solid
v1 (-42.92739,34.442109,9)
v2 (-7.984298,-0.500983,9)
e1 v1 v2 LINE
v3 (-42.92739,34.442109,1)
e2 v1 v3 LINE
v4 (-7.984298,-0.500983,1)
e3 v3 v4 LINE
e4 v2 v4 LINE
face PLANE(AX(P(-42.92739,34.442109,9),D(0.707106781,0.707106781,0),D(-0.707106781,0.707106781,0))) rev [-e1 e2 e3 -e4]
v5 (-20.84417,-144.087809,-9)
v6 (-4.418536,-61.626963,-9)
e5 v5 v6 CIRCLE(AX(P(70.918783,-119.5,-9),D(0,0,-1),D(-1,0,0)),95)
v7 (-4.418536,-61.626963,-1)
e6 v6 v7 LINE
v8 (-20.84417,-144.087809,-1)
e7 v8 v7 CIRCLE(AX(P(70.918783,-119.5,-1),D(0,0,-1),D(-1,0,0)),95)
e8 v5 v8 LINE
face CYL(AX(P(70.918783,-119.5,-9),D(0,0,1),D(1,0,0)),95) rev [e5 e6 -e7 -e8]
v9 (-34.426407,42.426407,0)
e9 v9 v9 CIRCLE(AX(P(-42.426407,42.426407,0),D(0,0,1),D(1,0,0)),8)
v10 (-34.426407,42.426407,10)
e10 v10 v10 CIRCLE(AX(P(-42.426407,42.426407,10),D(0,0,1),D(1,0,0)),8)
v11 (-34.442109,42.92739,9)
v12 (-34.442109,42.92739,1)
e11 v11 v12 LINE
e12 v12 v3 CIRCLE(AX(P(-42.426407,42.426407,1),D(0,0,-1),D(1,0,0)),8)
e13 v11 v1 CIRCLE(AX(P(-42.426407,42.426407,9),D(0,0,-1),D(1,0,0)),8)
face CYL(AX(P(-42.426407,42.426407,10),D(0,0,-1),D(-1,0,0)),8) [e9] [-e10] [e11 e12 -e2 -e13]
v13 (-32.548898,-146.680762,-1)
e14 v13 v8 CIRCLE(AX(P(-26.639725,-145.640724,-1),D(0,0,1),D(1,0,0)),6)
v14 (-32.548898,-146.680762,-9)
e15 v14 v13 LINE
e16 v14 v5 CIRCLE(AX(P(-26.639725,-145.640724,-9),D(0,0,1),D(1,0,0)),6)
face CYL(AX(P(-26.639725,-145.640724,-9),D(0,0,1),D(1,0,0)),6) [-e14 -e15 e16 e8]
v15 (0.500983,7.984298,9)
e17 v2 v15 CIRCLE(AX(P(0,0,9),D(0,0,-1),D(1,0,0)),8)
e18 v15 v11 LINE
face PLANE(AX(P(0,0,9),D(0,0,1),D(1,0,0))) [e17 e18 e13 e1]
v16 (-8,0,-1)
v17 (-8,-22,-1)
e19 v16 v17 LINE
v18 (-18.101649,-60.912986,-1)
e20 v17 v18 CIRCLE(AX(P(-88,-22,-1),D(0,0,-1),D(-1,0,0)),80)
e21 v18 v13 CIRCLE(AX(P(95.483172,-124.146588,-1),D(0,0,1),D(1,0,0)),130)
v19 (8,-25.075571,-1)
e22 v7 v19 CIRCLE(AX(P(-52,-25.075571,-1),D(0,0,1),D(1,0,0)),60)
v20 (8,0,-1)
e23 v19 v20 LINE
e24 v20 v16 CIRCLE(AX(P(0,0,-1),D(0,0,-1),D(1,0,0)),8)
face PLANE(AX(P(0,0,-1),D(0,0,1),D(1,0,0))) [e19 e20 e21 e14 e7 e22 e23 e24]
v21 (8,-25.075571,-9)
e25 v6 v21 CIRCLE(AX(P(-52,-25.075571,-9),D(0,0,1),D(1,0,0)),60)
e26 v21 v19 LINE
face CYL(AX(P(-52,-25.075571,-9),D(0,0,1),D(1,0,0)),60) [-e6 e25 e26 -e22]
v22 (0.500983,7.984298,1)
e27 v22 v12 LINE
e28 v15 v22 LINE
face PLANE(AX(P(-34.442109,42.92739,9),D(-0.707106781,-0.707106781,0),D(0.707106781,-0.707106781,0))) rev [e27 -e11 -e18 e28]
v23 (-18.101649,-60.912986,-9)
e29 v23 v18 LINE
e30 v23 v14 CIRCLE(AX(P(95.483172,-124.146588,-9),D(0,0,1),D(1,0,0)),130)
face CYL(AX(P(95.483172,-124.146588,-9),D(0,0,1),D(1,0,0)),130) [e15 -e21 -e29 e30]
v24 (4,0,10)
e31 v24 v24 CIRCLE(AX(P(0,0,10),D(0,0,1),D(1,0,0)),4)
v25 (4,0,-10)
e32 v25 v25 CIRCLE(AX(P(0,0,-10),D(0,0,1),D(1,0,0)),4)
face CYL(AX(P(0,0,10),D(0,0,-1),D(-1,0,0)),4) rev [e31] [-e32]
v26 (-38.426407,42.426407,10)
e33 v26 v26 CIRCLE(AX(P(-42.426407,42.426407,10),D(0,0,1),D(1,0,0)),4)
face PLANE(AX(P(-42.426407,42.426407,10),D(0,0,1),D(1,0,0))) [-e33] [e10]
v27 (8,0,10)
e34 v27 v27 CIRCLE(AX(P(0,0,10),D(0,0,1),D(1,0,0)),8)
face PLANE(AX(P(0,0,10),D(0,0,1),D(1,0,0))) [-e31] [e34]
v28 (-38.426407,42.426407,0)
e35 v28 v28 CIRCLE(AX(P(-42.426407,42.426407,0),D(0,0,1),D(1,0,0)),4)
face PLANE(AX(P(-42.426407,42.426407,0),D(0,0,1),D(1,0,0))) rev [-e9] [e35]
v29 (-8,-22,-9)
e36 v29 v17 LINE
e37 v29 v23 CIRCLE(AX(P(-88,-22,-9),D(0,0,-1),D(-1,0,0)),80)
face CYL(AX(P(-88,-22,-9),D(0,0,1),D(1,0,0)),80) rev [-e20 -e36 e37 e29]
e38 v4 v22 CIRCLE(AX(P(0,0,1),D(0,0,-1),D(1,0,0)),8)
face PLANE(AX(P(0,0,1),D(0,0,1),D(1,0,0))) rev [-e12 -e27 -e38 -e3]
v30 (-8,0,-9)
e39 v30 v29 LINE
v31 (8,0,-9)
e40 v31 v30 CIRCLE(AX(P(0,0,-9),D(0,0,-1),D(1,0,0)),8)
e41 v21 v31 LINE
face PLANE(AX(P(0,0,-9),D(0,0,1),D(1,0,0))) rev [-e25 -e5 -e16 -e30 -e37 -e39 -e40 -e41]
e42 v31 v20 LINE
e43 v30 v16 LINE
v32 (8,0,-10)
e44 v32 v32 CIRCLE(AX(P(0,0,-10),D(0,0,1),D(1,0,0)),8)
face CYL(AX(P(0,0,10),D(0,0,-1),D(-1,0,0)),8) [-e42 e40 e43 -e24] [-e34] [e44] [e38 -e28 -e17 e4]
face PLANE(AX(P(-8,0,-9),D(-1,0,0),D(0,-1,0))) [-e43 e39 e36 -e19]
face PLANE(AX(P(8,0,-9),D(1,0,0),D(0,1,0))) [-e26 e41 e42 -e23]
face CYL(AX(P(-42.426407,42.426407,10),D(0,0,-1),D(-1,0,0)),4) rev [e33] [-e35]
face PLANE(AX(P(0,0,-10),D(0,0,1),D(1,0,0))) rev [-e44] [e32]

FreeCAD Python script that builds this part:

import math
import FreeCAD as App
import Part
import Sketcher
Q = App.Units.Quantity

doc = App.newDocument("Part")
body = doc.addObject("PartDesign::Body", "Body")

sketch1 = body.newObject("Sketcher::SketchObject", "Sketch")
sketch1.AttachmentSupport = (doc.getObject("XY_Plane"), [""])
sketch1.MapMode = "FlatFace"
sketch1.addGeometry(Part.Circle(App.Vector(0, 0, 0), App.Vector(0, 0, 1), 8), False)
sketch1.addGeometry(Part.Circle(App.Vector(0, 0, 0), App.Vector(0, 0, 1), 4), False)
sketch1.addConstraint(Sketcher.Constraint("Coincident", 0, 3, -1, 1))
sketch1.addConstraint(Sketcher.Constraint("Coincident", 1, 3, -1, 1))
sketch1.addConstraint(Sketcher.Constraint("Diameter", 0, 16.0))
sketch1.addConstraint(Sketcher.Constraint("Diameter", 1, 8.0))
pad1 = body.newObject("PartDesign::Pad", "Pad")
pad1.Profile = sketch1
pad1.Length = 10
body2 = doc.addObject("PartDesign::Body", "Body001")

sketch2 = body2.newObject("Sketcher::SketchObject", "Sketch001")
sketch2.AttachmentSupport = (doc.getObject("XY_Plane001"), [""])
sketch2.MapMode = "FlatFace"
sketch2.addGeometry(Part.Circle(App.Vector(-42.4, 42.4, 0), App.Vector(0, 0, 1), 8), False)
sketch2.addGeometry(Part.Circle(App.Vector(-42.4, 42.4, 0), App.Vector(0, 0, 1), 4), False)
sketch2.addConstraint(Sketcher.Constraint("Coincident", 1, 3, 0, 3))
sketch2.addConstraint(Sketcher.Constraint("Diameter", 0, 16.0))
sketch2.addConstraint(Sketcher.Constraint("Diameter", 1, 8.0))
sketch2.addConstraint(Sketcher.Constraint("DistanceX", 0, 3, -1, 1, 42.426407))
sketch2.addConstraint(Sketcher.Constraint("DistanceY", -1, 1, 0, 3, 42.426407))
pad2 = body2.newObject("PartDesign::Pad", "Pad001")
pad2.Profile = sketch2
pad2.Length = 10
body.AllowCompound = True
doc.recompute()

boolean = body.newObject("PartDesign::Boolean", "Boolean")
boolean.Type = "Fuse"
boolean.addObjects([body2])

sketch3 = body.newObject("Sketcher::SketchObject", "Sketch002")
sketch3.AttachmentSupport = (doc.getObject("XY_Plane"), [""])
sketch3.MapMode = "FlatFace"
sketch3.AttachmentOffset = App.Placement(App.Vector(0, 0, 1), App.Rotation())
sketch3.addGeometry(Part.LineSegment(App.Vector(-43, 34, 0), App.Vector(-8, -1, 0)), False)
sketch3.addGeometry(Part.ArcOfCircle(Part.Circle(App.Vector(0, 0, 0), App.Vector(0, 0, 1), 8), math.radians(86), math.radians(184)), False)
sketch3.addGeometry(Part.LineSegment(App.Vector(1, 8, 0), App.Vector(-34, 43, 0)), False)
sketch3.addGeometry(Part.ArcOfCircle(Part.Circle(App.Vector(-42, 42, 0), App.Vector(0, 0, 1), 8), math.radians(-94), math.radians(4)), False)
sketch3.addConstraint(Sketcher.Constraint("Coincident", 0, 2, 1, 2))
sketch3.addConstraint(Sketcher.Constraint("Coincident", 1, 1, 2, 1))
sketch3.addConstraint(Sketcher.Constraint("Coincident", 2, 2, 3, 2))
sketch3.addConstraint(Sketcher.Constraint("Coincident", 3, 1, 0, 1))
sketch3.addConstraint(Sketcher.Constraint("Coincident", 1, 3, -1, 1))
sketch3.addConstraint(Sketcher.Constraint("Equal", 1, 3))
sketch3.addConstraint(Sketcher.Constraint("Parallel", 0, 2))
sketch3.addConstraint(Sketcher.Constraint("Equal", 0, 2))
sketch3.addConstraint(Sketcher.Constraint("Radius", 1, 8.0))
sketch3.addConstraint(Sketcher.Constraint("Angle", 0, Q("-45 deg")))
sketch3.addConstraint(Sketcher.Constraint("DistanceX", 0, 2, -1, 1, 7.984298))
sketch3.addConstraint(Sketcher.Constraint("DistanceY", -1, 1, 1, 1, 7.984298))
sketch3.addConstraint(Sketcher.Constraint("DistanceX", 2, 2, -1, 1, 34.442109))
pad3 = body.newObject("PartDesign::Pad", "Pad002")
pad3.Profile = sketch3
pad3.Length = 8
body3 = doc.addObject("PartDesign::Body", "Body002")

sketch4 = body3.newObject("Sketcher::SketchObject", "Sketch003")
sketch4.AttachmentSupport = (doc.getObject("XY_Plane002"), [""])
sketch4.MapMode = "FlatFace"
sketch4.AttachmentOffset = App.Placement(App.Vector(0, 0, -9), App.Rotation())
sketch4.addGeometry(Part.LineSegment(App.Vector(-8, 0, 0), App.Vector(-8, -22, 0)), False)
sketch4.addGeometry(Part.ArcOfCircle(Part.Circle(App.Vector(-88, -22, 0), App.Vector(0, 0, 1), 80), math.radians(-29), math.radians(0)), False)
sketch4.addGeometry(Part.ArcOfCircle(Part.Circle(App.Vector(95, -124, 0), App.Vector(0, 0, 1), 130), math.radians(151), math.radians(190)), False)
sketch4.addGeometry(Part.ArcOfCircle(Part.Circle(App.Vector(-27, -146, 0), App.Vector(0, 0, 1), 6), math.radians(-170), math.radians(15)), False)
sketch4.addGeometry(Part.ArcOfCircle(Part.Circle(App.Vector(71, -120, 0), App.Vector(0, 0, 1), 95), math.radians(142), math.radians(195)), False)
sketch4.addGeometry(Part.ArcOfCircle(Part.Circle(App.Vector(-52, -25, 0), App.Vector(0, 0, 1), 60), math.radians(-38), math.radians(0)), False)
sketch4.addGeometry(Part.LineSegment(App.Vector(8, -25, 0), App.Vector(8, 0, 0)), False)
sketch4.addGeometry(Part.ArcOfCircle(Part.Circle(App.Vector(0, 0, 0), App.Vector(0, 0, 1), 8), math.radians(180), math.radians(360)), False)
sketch4.addConstraint(Sketcher.Constraint("Tangent", 0, 2, 1, 2))
sketch4.addConstraint(Sketcher.Constraint("Tangent", 1, 1, 2, 1))
sketch4.addConstraint(Sketcher.Constraint("Tangent", 2, 2, 3, 1))
sketch4.addConstraint(Sketcher.Constraint("Tangent", 3, 2, 4, 2))
sketch4.addConstraint(Sketcher.Constraint("Tangent", 4, 1, 5, 1))
sketch4.addConstraint(Sketcher.Constraint("Tangent", 5, 2, 6, 1))
sketch4.addConstraint(Sketcher.Constraint("Tangent", 6, 2, 7, 2))
sketch4.addConstraint(Sketcher.Constraint("Tangent", 7, 1, 0, 1))
sketch4.addConstraint(Sketcher.Constraint("Vertical", 0))
sketch4.addConstraint(Sketcher.Constraint("Vertical", 6))
sketch4.addConstraint(Sketcher.Constraint("Coincident", 7, 3, -1, 1))
sketch4.addConstraint(Sketcher.Constraint("Radius", 1, 80.0))
sketch4.addConstraint(Sketcher.Constraint("Radius", 2, 130.0))
sketch4.addConstraint(Sketcher.Constraint("Radius", 3, 6.0))
sketch4.addConstraint(Sketcher.Constraint("Radius", 4, 95.0))
sketch4.addConstraint(Sketcher.Constraint("Radius", 5, 60.0))
sketch4.addConstraint(Sketcher.Constraint("Radius", 7, 8.0))
sketch4.addConstraint(Sketcher.Constraint("DistanceY", 0, 2, 0, 1, 22.0))
sketch4.addConstraint(Sketcher.Constraint("DistanceY", 4, 3, -1, 1, 119.5))
sketch4.addConstraint(Sketcher.Constraint("DistanceY", 6, 1, 6, 2, 25.075571))
sketch4.addConstraint(Sketcher.Constraint("DistanceY", 2, 3, -1, 1, 124.146588))
pad4 = body3.newObject("PartDesign::Pad", "Pad003")
pad4.Profile = sketch4
pad4.Length = 8
body.AllowCompound = True
doc.recompute()

boolean2 = body.newObject("PartDesign::Boolean", "Boolean001")
boolean2.Type = "Fuse"
boolean2.addObjects([body3])

sketch5 = body.newObject("Sketcher::SketchObject", "Sketch004")
sketch5.AttachmentSupport = (doc.getObject("XY_Plane"), [""])
sketch5.MapMode = "FlatFace"
sketch5.AttachmentOffset = App.Placement(App.Vector(0, 0, -10), App.Rotation())
sketch5.addGeometry(Part.Circle(App.Vector(0, 0, 0), App.Vector(0, 0, 1), 8), False)
sketch5.addGeometry(Part.Circle(App.Vector(0, 0, 0), App.Vector(0, 0, 1), 4), False)
sketch5.addConstraint(Sketcher.Constraint("Coincident", 0, 3, -1, 1))
sketch5.addConstraint(Sketcher.Constraint("Coincident", 1, 3, -1, 1))
sketch5.addConstraint(Sketcher.Constraint("Diameter", 0, 16.0))
sketch5.addConstraint(Sketcher.Constraint("Diameter", 1, 8.0))
pad5 = body.newObject("PartDesign::Pad", "Pad004")
pad5.Profile = sketch5
pad5.Length = 10

doc.recompute()
